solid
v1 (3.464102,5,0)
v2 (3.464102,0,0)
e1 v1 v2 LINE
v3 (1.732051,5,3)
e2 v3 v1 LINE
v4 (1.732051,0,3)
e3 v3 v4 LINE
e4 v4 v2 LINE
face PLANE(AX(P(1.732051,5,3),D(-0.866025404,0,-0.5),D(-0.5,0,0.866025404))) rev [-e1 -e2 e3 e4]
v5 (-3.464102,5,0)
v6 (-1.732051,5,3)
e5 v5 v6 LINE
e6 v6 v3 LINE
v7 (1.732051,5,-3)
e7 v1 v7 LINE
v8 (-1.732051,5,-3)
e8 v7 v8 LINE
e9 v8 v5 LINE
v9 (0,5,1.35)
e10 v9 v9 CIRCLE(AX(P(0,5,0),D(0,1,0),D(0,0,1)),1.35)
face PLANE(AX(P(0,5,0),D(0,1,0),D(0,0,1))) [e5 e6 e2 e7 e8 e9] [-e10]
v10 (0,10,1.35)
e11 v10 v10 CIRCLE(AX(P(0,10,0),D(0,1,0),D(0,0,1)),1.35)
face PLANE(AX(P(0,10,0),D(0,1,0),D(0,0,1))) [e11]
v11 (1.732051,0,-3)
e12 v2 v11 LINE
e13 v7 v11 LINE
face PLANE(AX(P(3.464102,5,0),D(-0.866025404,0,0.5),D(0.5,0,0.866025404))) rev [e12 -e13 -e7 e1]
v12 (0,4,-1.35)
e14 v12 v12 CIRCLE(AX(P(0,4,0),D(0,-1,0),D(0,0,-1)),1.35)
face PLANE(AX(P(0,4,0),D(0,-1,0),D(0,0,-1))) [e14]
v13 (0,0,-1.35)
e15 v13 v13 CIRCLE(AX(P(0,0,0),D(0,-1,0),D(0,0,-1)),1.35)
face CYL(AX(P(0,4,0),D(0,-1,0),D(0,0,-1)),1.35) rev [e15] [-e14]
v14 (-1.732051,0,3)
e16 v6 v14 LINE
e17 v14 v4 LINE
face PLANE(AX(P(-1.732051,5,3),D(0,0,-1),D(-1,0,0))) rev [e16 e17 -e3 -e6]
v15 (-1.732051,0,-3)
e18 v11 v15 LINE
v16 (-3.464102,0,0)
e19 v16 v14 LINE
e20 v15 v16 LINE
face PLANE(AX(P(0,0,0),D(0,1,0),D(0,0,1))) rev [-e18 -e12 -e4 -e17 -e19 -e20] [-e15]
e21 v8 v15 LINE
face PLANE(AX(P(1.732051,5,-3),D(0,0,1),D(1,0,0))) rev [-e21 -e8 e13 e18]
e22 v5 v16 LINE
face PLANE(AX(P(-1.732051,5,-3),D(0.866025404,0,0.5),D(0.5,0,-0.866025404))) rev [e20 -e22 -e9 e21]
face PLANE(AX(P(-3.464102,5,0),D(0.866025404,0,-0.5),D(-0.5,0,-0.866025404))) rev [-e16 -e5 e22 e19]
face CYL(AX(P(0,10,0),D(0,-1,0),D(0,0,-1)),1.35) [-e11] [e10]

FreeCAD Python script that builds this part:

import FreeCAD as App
import Part
import Sketcher

V = App.Vector
Q = App.Units.Quantity

doc = App.newDocument("Part")
body = doc.addObject("PartDesign::Body", "Body")

# Sketch on XZ plane
sketch1 = body.newObject("Sketcher::SketchObject", "Sketch")
sketch1.AttachmentSupport = (doc.getObject("XZ_Plane"), [""])
sketch1.MapMode = "FlatFace"
sketch1.addGeometry(Part.LineSegment(V(3.464102, 0, 0), V(1.732051, -3, 0)), False)
sketch1.addGeometry(Part.LineSegment(V(1.732051, -3, 0), V(-1.732051, -3, 0)), False)
sketch1.addGeometry(Part.LineSegment(V(-1.732051, -3, 0), V(-3.464102, 0, 0)), False)
sketch1.addGeometry(Part.LineSegment(V(-3.464102, 0, 0), V(-1.732051, 3, 0)), False)
sketch1.addGeometry(Part.LineSegment(V(-1.732051, 3, 0), V(1.732051, 3, 0)), False)
sketch1.addGeometry(Part.LineSegment(V(1.732051, 3, 0), V(3.464102, 0, 0)), False)
sketch1.addConstraint(Sketcher.Constraint("Coincident", 0, 2, 1, 1))
sketch1.addConstraint(Sketcher.Constraint("Coincident", 1, 2, 2, 1))
sketch1.addConstraint(Sketcher.Constraint("Coincident", 2, 2, 3, 1))
sketch1.addConstraint(Sketcher.Constraint("Coincident", 3, 2, 4, 1))
sketch1.addConstraint(Sketcher.Constraint("Coincident", 4, 2, 5, 1))
sketch1.addConstraint(Sketcher.Constraint("Coincident", 5, 2, 0, 1))
sketch1.addConstraint(Sketcher.Constraint("Horizontal", 1))
sketch1.addConstraint(Sketcher.Constraint("Horizontal", 4))
sketch1.addConstraint(Sketcher.Constraint("Symmetric", 0, 2, 3, 2, -1, 1))
sketch1.addConstraint(Sketcher.Constraint("Symmetric", 2, 2, 5, 2, -1, 1))
sketch1.addConstraint(Sketcher.Constraint("PointOnObject", 2, 2, -1))
sketch1.addConstraint(Sketcher.Constraint("Parallel", 2, 5))
sketch1.addConstraint(Sketcher.Constraint("Vertical", 1, 2, 3, 2))
sketch1.addConstraint(Sketcher.Constraint("Angle", 0, Q("-120 deg")))
sketch1.addConstraint(Sketcher.Constraint("DistanceY", 0, 2, -1, 1, Q("3 mm")))
sketch1.addConstraint(Sketcher.Constraint("DistanceX", 1, 2, 1, 1, Q("3.464102 mm")))
pad1 = body.newObject("PartDesign::Pad", "Pad")
pad1.Profile = sketch1
pad1.Length = 5
pad1.Reversed = True

# Sketch on XZ plane
sketch2 = body.newObject("Sketcher::SketchObject", "Sketch001")
sketch2.AttachmentSupport = (doc.getObject("XZ_Plane"), [""])
sketch2.MapMode = "FlatFace"
sketch2.AttachmentOffset = App.Placement(V(0, 0, -5), App.Rotation())
sketch2.addGeometry(Part.Circle(V(0, 0, 0), V(0, 0, 1), 1.35), False)
sketch2.addConstraint(Sketcher.Constraint("Coincident", 0, 3, -1, 1))
sketch2.addConstraint(Sketcher.Constraint("Diameter", 0, Q("2.7 mm")))
pad2 = body.newObject("PartDesign::Pad", "Pad001")
pad2.Profile = sketch2
pad2.Length = 5
pad2.Reversed = True

# Sketch on XZ plane
sketch3 = body.newObject("Sketcher::SketchObject", "Sketch002")
sketch3.AttachmentSupport = (doc.getObject("XZ_Plane"), [""])
sketch3.MapMode = "FlatFace"
sketch3.addGeometry(Part.Circle(V(0, 0, 0), V(0, 0, 1), 1.35), False)
sketch3.addConstraint(Sketcher.Constraint("Coincident", 0, 3, -1, 1))
sketch3.addConstraint(Sketcher.Constraint("Diameter", 0, Q("2.7 mm")))
pocket1 = body.newObject("PartDesign::Pocket", "Pocket")
pocket1.Profile = sketch3
pocket1.Length = 4

doc.recompute()
